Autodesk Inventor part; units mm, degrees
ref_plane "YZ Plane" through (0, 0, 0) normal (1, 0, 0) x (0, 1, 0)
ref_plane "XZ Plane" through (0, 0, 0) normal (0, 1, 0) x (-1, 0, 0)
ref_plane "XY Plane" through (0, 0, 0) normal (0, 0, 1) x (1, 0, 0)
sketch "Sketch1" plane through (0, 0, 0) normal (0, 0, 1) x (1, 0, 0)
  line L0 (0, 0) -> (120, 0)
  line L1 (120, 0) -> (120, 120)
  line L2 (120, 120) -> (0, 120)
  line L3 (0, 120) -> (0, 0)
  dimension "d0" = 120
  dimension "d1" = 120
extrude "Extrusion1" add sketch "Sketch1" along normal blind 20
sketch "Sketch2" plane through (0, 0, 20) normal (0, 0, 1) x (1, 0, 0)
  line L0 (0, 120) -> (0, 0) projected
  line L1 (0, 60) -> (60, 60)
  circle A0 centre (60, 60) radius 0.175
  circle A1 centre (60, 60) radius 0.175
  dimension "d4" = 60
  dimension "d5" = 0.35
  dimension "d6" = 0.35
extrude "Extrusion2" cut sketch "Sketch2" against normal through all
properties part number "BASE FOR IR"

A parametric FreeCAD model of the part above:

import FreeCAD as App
import Part
import Sketcher

V = App.Vector


def add_polygon(sketch, points):
    """Adds a closed chain of lines whose ends are joined by coincident constraints."""
    first, n = sketch.GeometryCount, len(points)
    for a, b in zip(points, points[1:] + points[:1]):
        sketch.addGeometry(Part.LineSegment(App.Vector(*a, 0), App.Vector(*b, 0)), False)
    for i in range(n):
        sketch.addConstraint(Sketcher.Constraint("Coincident", first + i, 2, first + (i + 1) % n, 1))

doc = App.newDocument("Part")
body = doc.addObject("PartDesign::Body", "Body")

sketch1 = body.newObject("Sketcher::SketchObject", "Sketch")
sketch1.AttachmentSupport = (doc.getObject("XY_Plane"), [""])
sketch1.MapMode = "FlatFace"
add_polygon(sketch1, [(0, 120), (0, 0), (120, 0), (120, 120)])
sketch1.addConstraint([
    Sketcher.Constraint("Vertical", 0),
    Sketcher.Constraint("Horizontal", 1),
    Sketcher.Constraint("Vertical", 2),
    Sketcher.Constraint("Horizontal", 3),
    Sketcher.Constraint("Coincident", 0, 2, -1, 1),
    Sketcher.Constraint("Equal", 3, 0),
    Sketcher.Constraint("DistanceX", 1, 1, 1, 2, 120.0),
])
pad1 = body.newObject("PartDesign::Pad", "Pad")
pad1.Profile = sketch1
pad1.Length = 20

sketch2 = body.newObject("Sketcher::SketchObject", "Sketch001")
sketch2.AttachmentSupport = (doc.getObject("XY_Plane"), [""])
sketch2.MapMode = "FlatFace"
sketch2.AttachmentOffset = App.Placement(V(0, 0, 20), App.Rotation())
sketch2.addGeometry(Part.Circle(V(60, 60, 0), V(0, 0, 1), 0.17), False)
sketch2.addConstraint([
    Sketcher.Constraint("Diameter", 0, 0.35),
    Sketcher.Constraint("DistanceX", -1, 1, 0, 3, 60.0),
    Sketcher.Constraint("DistanceY", -1, 1, 0, 3, 60.0),
])
pocket1 = body.newObject("PartDesign::Pocket", "Pocket")
pocket1.Profile = sketch2
pocket1.Type = "ThroughAll"

doc.recompute()
